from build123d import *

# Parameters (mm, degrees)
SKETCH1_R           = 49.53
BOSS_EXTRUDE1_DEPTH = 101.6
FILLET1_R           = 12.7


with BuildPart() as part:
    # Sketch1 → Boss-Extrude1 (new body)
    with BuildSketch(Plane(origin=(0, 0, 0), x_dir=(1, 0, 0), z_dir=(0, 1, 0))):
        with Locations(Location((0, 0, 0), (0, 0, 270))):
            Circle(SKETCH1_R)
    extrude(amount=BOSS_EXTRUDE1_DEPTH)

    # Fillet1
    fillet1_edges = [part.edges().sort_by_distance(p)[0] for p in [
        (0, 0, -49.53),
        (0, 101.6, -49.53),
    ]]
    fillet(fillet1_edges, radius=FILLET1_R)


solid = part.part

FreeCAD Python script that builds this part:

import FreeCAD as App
import Part
import Sketcher
Q = App.Units.Quantity


def edges_at(feature, points):
    """Names of the edges that pass closest to the given points."""
    edges = feature.Shape.Edges
    near = lambda p: min(range(len(edges)), key=lambda i: edges[i].distToShape(Part.Vertex(*p))[0])
    return sorted({f"Edge{near(p) + 1}" for p in points})

doc = App.newDocument("Part")
body = doc.addObject("PartDesign::Body", "Body")

# Sketch on XZ plane
sketch1 = doc.addObject("Sketcher::SketchObject", "Sketch")
body.addObject(sketch1)
sketch1.AttachmentSupport = (doc.XZ_Plane, [""])
sketch1.MapMode = "FlatFace"
sketch1.addGeometry(Part.Circle(App.Vector(0, 0, 0), App.Vector(0, 0, 1), 50), False)
sketch1.addConstraint(Sketcher.Constraint("Coincident", 0, 3, -1, 1))
sketch1.addConstraint(Sketcher.Constraint("Diameter", 0, Q("3.9 in")))
pad1 = doc.addObject("PartDesign::Pad", "Pad")
body.addObject(pad1)
pad1.Profile = sketch1
pad1.Length = Q("4 in")
pad1.Reversed = True
doc.recompute()

fillet = doc.addObject("PartDesign::Fillet", "Fillet")
body.addObject(fillet)
fillet.Base = (pad1, edges_at(pad1, [(0, 0, -49.53), (0, 101.6, -49.53)]))
fillet.Radius = Q("0.5 in")

doc.recompute()
